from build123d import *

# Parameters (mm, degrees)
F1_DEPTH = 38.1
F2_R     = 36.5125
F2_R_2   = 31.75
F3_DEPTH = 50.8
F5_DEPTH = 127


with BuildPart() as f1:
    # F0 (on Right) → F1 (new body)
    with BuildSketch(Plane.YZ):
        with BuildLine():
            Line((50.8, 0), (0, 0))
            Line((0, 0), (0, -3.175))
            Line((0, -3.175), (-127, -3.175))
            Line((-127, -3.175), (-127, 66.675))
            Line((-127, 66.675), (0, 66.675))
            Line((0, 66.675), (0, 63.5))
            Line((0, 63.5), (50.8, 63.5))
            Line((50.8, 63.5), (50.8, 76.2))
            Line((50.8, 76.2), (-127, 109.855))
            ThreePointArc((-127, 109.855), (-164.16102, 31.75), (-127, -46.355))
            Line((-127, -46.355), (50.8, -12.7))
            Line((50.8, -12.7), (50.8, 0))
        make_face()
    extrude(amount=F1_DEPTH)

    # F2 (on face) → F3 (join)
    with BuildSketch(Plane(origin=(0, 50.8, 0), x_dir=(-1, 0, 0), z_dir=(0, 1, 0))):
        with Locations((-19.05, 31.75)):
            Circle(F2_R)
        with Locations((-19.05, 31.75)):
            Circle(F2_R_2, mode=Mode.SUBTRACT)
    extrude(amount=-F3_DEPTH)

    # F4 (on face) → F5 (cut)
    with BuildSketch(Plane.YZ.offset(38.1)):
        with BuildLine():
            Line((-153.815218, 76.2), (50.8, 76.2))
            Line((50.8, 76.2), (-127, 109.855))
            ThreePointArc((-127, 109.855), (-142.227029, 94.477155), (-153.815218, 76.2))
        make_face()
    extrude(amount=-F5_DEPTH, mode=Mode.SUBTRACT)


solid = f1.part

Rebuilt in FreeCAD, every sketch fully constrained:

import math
import FreeCAD as App
import Part
import Sketcher
from FreeCAD import Vector
Q = App.Units.Quantity

doc = App.newDocument("Part")
body = doc.addObject("PartDesign::Body", "Body")

sketch1 = body.newObject("Sketcher::SketchObject", "Sketch")
sketch1.AttachmentSupport = (doc.getObject("YZ_Plane"), [""])
sketch1.MapMode = "FlatFace"
sketch1.addGeometry([
    Part.LineSegment(Vector(50.8, 0, 0), Vector(0, 0, 0)),
    Part.LineSegment(Vector(0, 0, 0), Vector(0, -3.2, 0)),
    Part.LineSegment(Vector(0, -3.2, 0), Vector(-127, -3.2, 0)),
    Part.LineSegment(Vector(-127, -3.2, 0), Vector(-127, 66.7, 0)),
    Part.LineSegment(Vector(-127, 66.7, 0), Vector(0, 66.7, 0)),
    Part.LineSegment(Vector(0, 66.7, 0), Vector(0, 63.5, 0)),
    Part.LineSegment(Vector(0, 63.5, 0), Vector(50.8, 63.5, 0)),
    Part.LineSegment(Vector(50.8, 63.5, 0), Vector(50.8, 76.2, 0)),
    Part.LineSegment(Vector(50.8, 76.2, 0), Vector(-127, 109.9, 0)),
    Part.ArcOfCircle(Part.Circle(Vector(-63.5, 31.8, 0), Vector(0, 0, 1), 100.7), math.radians(129), math.radians(231)),
    Part.LineSegment(Vector(-127, -46.4, 0), Vector(50.8, -12.7, 0)),
    Part.LineSegment(Vector(50.8, -12.7, 0), Vector(50.8, 0, 0)),
], False)
sketch1.addConstraint([
    Sketcher.Constraint("Coincident", 0, 2, 1, 1),
    Sketcher.Constraint("Coincident", 1, 2, 2, 1),
    Sketcher.Constraint("Coincident", 2, 2, 3, 1),
    Sketcher.Constraint("Coincident", 3, 2, 4, 1),
    Sketcher.Constraint("Coincident", 4, 2, 5, 1),
    Sketcher.Constraint("Coincident", 5, 2, 6, 1),
    Sketcher.Constraint("Coincident", 6, 2, 7, 1),
    Sketcher.Constraint("Coincident", 7, 2, 8, 1),
    Sketcher.Constraint("Coincident", 8, 2, 9, 1),
    Sketcher.Constraint("Coincident", 9, 2, 10, 1),
    Sketcher.Constraint("Coincident", 10, 2, 11, 1),
    Sketcher.Constraint("Coincident", 11, 2, 0, 1),
    Sketcher.Constraint("Horizontal", 0),
    Sketcher.Constraint("Vertical", 1),
    Sketcher.Constraint("Horizontal", 2),
    Sketcher.Constraint("Vertical", 3),
    Sketcher.Constraint("Horizontal", 4),
    Sketcher.Constraint("Vertical", 5),
    Sketcher.Constraint("Horizontal", 6),
    Sketcher.Constraint("Vertical", 7),
    Sketcher.Constraint("Vertical", 11),
    Sketcher.Constraint("Coincident", 0, 2, -1, 1),
    Sketcher.Constraint("PointOnObject", 4, 2, -2),
    Sketcher.Constraint("Vertical", 3, 2, 8, 2),
    Sketcher.Constraint("Vertical", 8, 2, 9, 2),
    Sketcher.Constraint("Vertical", 7, 2, 10, 2),
    Sketcher.Constraint("Equal", 1, 5),
    Sketcher.Constraint("Equal", 7, 11),
    Sketcher.Constraint("Equal", 8, 10),
    Sketcher.Constraint("DistanceX", 0, 2, 0, 1, Q("2 in")),
    Sketcher.Constraint("DistanceX", 2, 2, 2, 1, Q("5 in")),
    Sketcher.Constraint("DistanceY", 7, 1, 7, 2, Q("0.5 in")),
    Sketcher.Constraint("DistanceY", -1, 1, 7, 2, Q("3 in")),
    Sketcher.Constraint("DistanceY", 3, 1, 3, 2, Q("2.75 in")),
    Sketcher.Constraint("DistanceX", 9, 3, -1, 1, Q("2.5 in")),
    Sketcher.Constraint("DistanceY", 3, 2, 8, 2, Q("1.7 in")),
])
pad1 = body.newObject("PartDesign::Pad", "Pad")
pad1.Profile = sketch1
pad1.Length = Q("1.5 in")

sketch2 = body.newObject("Sketcher::SketchObject", "Sketch001")
sketch2.AttachmentSupport = (doc.getObject("XZ_Plane"), [""])
sketch2.MapMode = "FlatFace"
sketch2.AttachmentOffset = App.Placement(Vector(0, 0, -2 * 25.4), App.Rotation())
sketch2.addGeometry([
    Part.Circle(Vector(19, 32, 0), Vector(0, 0, 1), 37),
    Part.Circle(Vector(19, 32, 0), Vector(0, 0, 1), 32),
], False)
sketch2.addConstraint([
    Sketcher.Constraint("Coincident", 1, 3, 0, 3),
    Sketcher.Constraint("Diameter", 1, Q("2.5 in")),
    Sketcher.Constraint("Diameter", 0, Q("2.875 in")),
    Sketcher.Constraint("DistanceX", -1, 1, 0, 3, Q("0.75 in")),
    Sketcher.Constraint("DistanceY", -1, 1, 0, 3, Q("1.25 in")),
])
pad2 = body.newObject("PartDesign::Pad", "Pad001")
pad2.Profile = sketch2
pad2.Length = Q("2 in")

sketch3 = body.newObject("Sketcher::SketchObject", "Sketch002")
sketch3.AttachmentSupport = (doc.getObject("YZ_Plane"), [""])
sketch3.MapMode = "FlatFace"
sketch3.AttachmentOffset = App.Placement(Vector(0, 0, 1.5 * 25.4), App.Rotation())
sketch3.addGeometry([
    Part.LineSegment(Vector(-154, 76, 0), Vector(51, 76, 0)),
    Part.LineSegment(Vector(51, 76, 0), Vector(-127, 110, 0)),
    Part.ArcOfCircle(Part.Circle(Vector(-64, 32, 0), Vector(0, 0, 1), 101), math.radians(129), math.radians(154)),
], False)
sketch3.addConstraint([
    Sketcher.Constraint("Coincident", 0, 2, 1, 1),
    Sketcher.Constraint("Coincident", 1, 2, 2, 1),
    Sketcher.Constraint("Coincident", 2, 2, 0, 1),
    Sketcher.Constraint("Horizontal", 0),
    Sketcher.Constraint("DistanceX", -1, 1, 0, 2, Q("2 in")),
    Sketcher.Constraint("DistanceY", -1, 1, 0, 2, Q("3 in")),
    Sketcher.Constraint("DistanceX", 1, 2, -1, 1, Q("5 in")),
    Sketcher.Constraint("DistanceX", 2, 3, -1, 1, Q("2.5000001 in")),
    Sketcher.Constraint("DistanceY", -1, 1, 2, 3, Q("1.25 in")),
    Sketcher.Constraint("DistanceY", -1, 1, 1, 2, Q("4.325 in")),
])
pocket1 = body.newObject("PartDesign::Pocket", "Pocket")
pocket1.Profile = sketch3
pocket1.Length = Q("5 in")

doc.recompute()
